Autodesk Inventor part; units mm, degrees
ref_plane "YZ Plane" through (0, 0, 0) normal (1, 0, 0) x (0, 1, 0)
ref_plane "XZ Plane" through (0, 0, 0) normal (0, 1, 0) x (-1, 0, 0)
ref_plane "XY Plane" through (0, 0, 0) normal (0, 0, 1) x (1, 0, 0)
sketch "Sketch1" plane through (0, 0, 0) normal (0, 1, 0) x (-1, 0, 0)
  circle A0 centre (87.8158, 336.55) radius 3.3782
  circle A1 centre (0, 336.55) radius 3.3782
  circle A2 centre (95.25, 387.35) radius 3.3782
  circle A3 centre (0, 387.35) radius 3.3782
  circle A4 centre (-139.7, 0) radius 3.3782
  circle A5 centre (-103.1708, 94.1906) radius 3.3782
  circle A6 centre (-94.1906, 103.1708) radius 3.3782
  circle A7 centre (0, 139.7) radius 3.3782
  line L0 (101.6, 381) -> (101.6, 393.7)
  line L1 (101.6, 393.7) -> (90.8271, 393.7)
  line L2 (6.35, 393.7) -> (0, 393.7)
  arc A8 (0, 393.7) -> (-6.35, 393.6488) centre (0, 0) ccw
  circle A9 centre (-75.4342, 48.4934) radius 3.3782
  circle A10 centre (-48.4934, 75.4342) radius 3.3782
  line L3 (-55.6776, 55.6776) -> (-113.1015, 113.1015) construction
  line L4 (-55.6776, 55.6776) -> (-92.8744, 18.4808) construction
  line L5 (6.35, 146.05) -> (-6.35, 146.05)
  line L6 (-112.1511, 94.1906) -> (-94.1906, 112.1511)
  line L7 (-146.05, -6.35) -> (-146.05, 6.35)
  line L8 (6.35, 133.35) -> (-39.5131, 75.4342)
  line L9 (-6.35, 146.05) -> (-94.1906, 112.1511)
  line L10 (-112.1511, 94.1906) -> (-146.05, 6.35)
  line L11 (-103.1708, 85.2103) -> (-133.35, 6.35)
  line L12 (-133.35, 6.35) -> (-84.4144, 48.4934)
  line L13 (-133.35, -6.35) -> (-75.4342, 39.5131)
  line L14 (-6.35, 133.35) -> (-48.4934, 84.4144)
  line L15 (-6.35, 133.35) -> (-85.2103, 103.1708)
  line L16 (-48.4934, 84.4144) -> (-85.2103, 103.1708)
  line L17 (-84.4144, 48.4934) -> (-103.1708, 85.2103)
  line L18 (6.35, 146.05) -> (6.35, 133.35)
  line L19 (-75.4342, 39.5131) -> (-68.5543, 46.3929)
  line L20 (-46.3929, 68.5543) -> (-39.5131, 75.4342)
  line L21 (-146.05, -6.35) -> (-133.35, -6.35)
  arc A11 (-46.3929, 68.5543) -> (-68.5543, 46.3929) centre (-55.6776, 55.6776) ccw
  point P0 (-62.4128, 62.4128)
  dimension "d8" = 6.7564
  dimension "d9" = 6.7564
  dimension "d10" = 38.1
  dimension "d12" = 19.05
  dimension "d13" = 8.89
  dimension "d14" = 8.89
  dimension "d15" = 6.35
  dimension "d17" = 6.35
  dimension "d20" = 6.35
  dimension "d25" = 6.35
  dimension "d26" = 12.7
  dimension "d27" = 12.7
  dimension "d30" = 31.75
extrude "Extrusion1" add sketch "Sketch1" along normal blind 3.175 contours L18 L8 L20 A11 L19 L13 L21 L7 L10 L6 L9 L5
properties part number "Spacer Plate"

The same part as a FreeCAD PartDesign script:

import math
import FreeCAD as App
import Part
import Sketcher

V = App.Vector
Q = App.Units.Quantity


def add_polygon(sketch, points):
    """Adds a closed chain of lines whose ends are joined by coincident constraints."""
    first, n = sketch.GeometryCount, len(points)
    for a, b in zip(points, points[1:] + points[:1]):
        sketch.addGeometry(Part.LineSegment(App.Vector(*a, 0), App.Vector(*b, 0)), False)
    for i in range(n):
        sketch.addConstraint(Sketcher.Constraint("Coincident", first + i, 2, first + (i + 1) % n, 1))

doc = App.newDocument("Part")
body = doc.addObject("PartDesign::Body", "Body")

sketch1 = body.newObject("Sketcher::SketchObject", "Sketch")
sketch1.AttachmentSupport = (doc.getObject("XZ_Plane"), [""])
sketch1.MapMode = "FlatFace"
sketch1.addGeometry(Part.LineSegment(V(-6.3, 133.3, 0), V(-6.3, 146.1, 0)), False)
sketch1.addGeometry(Part.LineSegment(V(-6.3, 146.1, 0), V(6.3, 146.1, 0)), False)
sketch1.addGeometry(Part.LineSegment(V(6.3, 146.1, 0), V(94.2, 112.2, 0)), False)
sketch1.addGeometry(Part.LineSegment(V(94.2, 112.2, 0), V(112.2, 94.2, 0)), False)
sketch1.addGeometry(Part.LineSegment(V(112.2, 94.2, 0), V(146.1, 6.3, 0)), False)
sketch1.addGeometry(Part.LineSegment(V(146.1, 6.3, 0), V(146.1, -6.3, 0)), False)
sketch1.addGeometry(Part.LineSegment(V(146.1, -6.3, 0), V(133.3, -6.3, 0)), False)
sketch1.addGeometry(Part.LineSegment(V(133.3, -6.3, 0), V(75.4, 39.5, 0)), False)
sketch1.addGeometry(Part.LineSegment(V(75.4, 39.5, 0), V(68.6, 46.4, 0)), False)
sketch1.addGeometry(Part.ArcOfCircle(Part.Circle(V(55.7, 55.7, 0), V(0, 0, 1), 15.9), math.radians(-36), math.radians(126)), False)
sketch1.addGeometry(Part.LineSegment(V(46.4, 68.6, 0), V(39.5, 75.4, 0)), False)
sketch1.addGeometry(Part.LineSegment(V(39.5, 75.4, 0), V(-6.3, 133.3, 0)), False)
sketch1.addGeometry(Part.Circle(V(139.7, 0, 0), V(0, 0, 1), 3.4), False)
add_polygon(sketch1, [(133.3, 6.3), (103.2, 85.2), (84.4, 48.5)])
sketch1.addGeometry(Part.Circle(V(75.4, 48.5, 0), V(0, 0, 1), 3.4), False)
sketch1.addGeometry(Part.Circle(V(48.5, 75.4, 0), V(0, 0, 1), 3.4), False)
sketch1.addGeometry(Part.Circle(V(103.2, 94.2, 0), V(0, 0, 1), 3.4), False)
sketch1.addGeometry(Part.Circle(V(94.2, 103.2, 0), V(0, 0, 1), 3.4), False)
add_polygon(sketch1, [(85.2, 103.2), (6.3, 133.3), (48.5, 84.4)])
sketch1.addGeometry(Part.Circle(V(0, 139.7, 0), V(0, 0, 1), 3.4), False)
sketch1.addConstraint(Sketcher.Constraint("Coincident", 0, 2, 1, 1))
sketch1.addConstraint(Sketcher.Constraint("Coincident", 1, 2, 2, 1))
sketch1.addConstraint(Sketcher.Constraint("Coincident", 2, 2, 3, 1))
sketch1.addConstraint(Sketcher.Constraint("Coincident", 3, 2, 4, 1))
sketch1.addConstraint(Sketcher.Constraint("Coincident", 4, 2, 5, 1))
sketch1.addConstraint(Sketcher.Constraint("Coincident", 5, 2, 6, 1))
sketch1.addConstraint(Sketcher.Constraint("Coincident", 6, 2, 7, 1))
sketch1.addConstraint(Sketcher.Constraint("Coincident", 7, 2, 8, 1))
sketch1.addConstraint(Sketcher.Constraint("Coincident", 8, 2, 9, 1))
sketch1.addConstraint(Sketcher.Constraint("Coincident", 9, 2, 10, 1))
sketch1.addConstraint(Sketcher.Constraint("Coincident", 10, 2, 11, 1))
sketch1.addConstraint(Sketcher.Constraint("Coincident", 11, 2, 0, 1))
sketch1.addConstraint(Sketcher.Constraint("Vertical", 0))
sketch1.addConstraint(Sketcher.Constraint("Horizontal", 1))
sketch1.addConstraint(Sketcher.Constraint("Vertical", 5))
sketch1.addConstraint(Sketcher.Constraint("Horizontal", 6))
sketch1.addConstraint(Sketcher.Constraint("Equal", 12, 16))
sketch1.addConstraint(Sketcher.Constraint("Equal", 16, 17))
sketch1.addConstraint(Sketcher.Constraint("Equal", 17, 18))
sketch1.addConstraint(Sketcher.Constraint("Equal", 18, 19))
sketch1.addConstraint(Sketcher.Constraint("Equal", 19, 23))
sketch1.addConstraint(Sketcher.Constraint("Symmetric", 11, 2, 20, 2, -2))
sketch1.addConstraint(Sketcher.Constraint("Symmetric", 6, 2, 15, 2, -1))
sketch1.addConstraint(Sketcher.Constraint("PointOnObject", 12, 3, -1))
sketch1.addConstraint(Sketcher.Constraint("PointOnObject", 23, 3, -2))
sketch1.addConstraint(Sketcher.Constraint("Parallel", 3, 8))
sketch1.addConstraint(Sketcher.Constraint("Parallel", 8, 10))
sketch1.addConstraint(Sketcher.Constraint("Horizontal", 18, 3, 3, 2))
sketch1.addConstraint(Sketcher.Constraint("Horizontal", 17, 3, 10, 2))
sketch1.addConstraint(Sketcher.Constraint("Horizontal", 16, 3, 14, 2))
sketch1.addConstraint(Sketcher.Constraint("Horizontal", 4, 2, 15, 2))
sketch1.addConstraint(Sketcher.Constraint("Horizontal", 19, 3, 22, 2))
sketch1.addConstraint(Sketcher.Constraint("Vertical", 19, 3, 2, 2))
sketch1.addConstraint(Sketcher.Constraint("Vertical", 16, 3, 7, 2))
sketch1.addConstraint(Sketcher.Constraint("Vertical", 18, 3, 13, 2))
sketch1.addConstraint(Sketcher.Constraint("Vertical", 1, 2, 20, 2))
sketch1.addConstraint(Sketcher.Constraint("Vertical", 17, 3, 21, 2))
sketch1.addConstraint(Sketcher.Constraint("Equal", 1, 6))
sketch1.addConstraint(Sketcher.Constraint("Equal", 6, 0))
sketch1.addConstraint(Sketcher.Constraint("Equal", 0, 5))
sketch1.addConstraint(Sketcher.Constraint("Equal", 2, 4))
sketch1.addConstraint(Sketcher.Constraint("Equal", 8, 10))
sketch1.addConstraint(Sketcher.Constraint("Equal", 7, 11))
sketch1.addConstraint(Sketcher.Constraint("Equal", 13, 20))
sketch1.addConstraint(Sketcher.Constraint("Equal", 15, 21))
sketch1.addConstraint(Sketcher.Constraint("Equal", 14, 22))
sketch1.addConstraint(Sketcher.Constraint("Diameter", 12, Q("0.266 in")))
sketch1.addConstraint(Sketcher.Constraint("DistanceX", 1, 1, 1, 2, Q("0.5 in")))
sketch1.addConstraint(Sketcher.Constraint("Radius", 9, Q("0.625 in")))
sketch1.addConstraint(Sketcher.Constraint("DistanceY", 23, 3, 0, 2, Q("0.25 in")))
sketch1.addConstraint(Sketcher.Constraint("DistanceX", 12, 3, 4, 2, Q("0.25 in")))
sketch1.addConstraint(Sketcher.Constraint("Distance", 3, Q("1 in")))
sketch1.addConstraint(Sketcher.Constraint("Angle", 3, Q("-45 deg")))
sketch1.addConstraint(Sketcher.Constraint("DistanceX", -1, 1, 12, 3, Q("5.5 in")))
sketch1.addConstraint(Sketcher.Constraint("DistanceY", -1, 1, 23, 3, Q("5.5 in")))
sketch1.addConstraint(Sketcher.Constraint("Angle", 14, Q("-117.0597 deg")))
sketch1.addConstraint(Sketcher.Constraint("Angle", 22, Q("27.0597 deg")))
sketch1.addConstraint(Sketcher.Constraint("DistanceX", -1, 1, 8, 2, Q("2.699 in")))
sketch1.addConstraint(Sketcher.Constraint("DistanceY", -1, 1, 9, 2, Q("2.699 in")))
sketch1.addConstraint(Sketcher.Constraint("DistanceX", 16, 3, 18, 3, Q("1.092 in")))
sketch1.addConstraint(Sketcher.Constraint("Distance", 7, Q("2.9085 in")))
sketch1.addConstraint(Sketcher.Constraint("DistanceY", -1, 1, 16, 3, Q("1.9092 in")))
sketch1.addConstraint(Sketcher.Constraint("DistanceY", -1, 1, 18, 3, Q("3.7083 in")))
sketch1.addConstraint(Sketcher.Constraint("DistanceY", -1, 1, 8, 2, Q("1.8265 in")))
sketch1.addConstraint(Sketcher.Constraint("DistanceX", -1, 1, 14, 2, Q("3.3234 in")))
pad1 = body.newObject("PartDesign::Pad", "Pad")
pad1.Profile = sketch1
pad1.Length = Q("0.125 in")
pad1.Reversed = True

doc.recompute()
